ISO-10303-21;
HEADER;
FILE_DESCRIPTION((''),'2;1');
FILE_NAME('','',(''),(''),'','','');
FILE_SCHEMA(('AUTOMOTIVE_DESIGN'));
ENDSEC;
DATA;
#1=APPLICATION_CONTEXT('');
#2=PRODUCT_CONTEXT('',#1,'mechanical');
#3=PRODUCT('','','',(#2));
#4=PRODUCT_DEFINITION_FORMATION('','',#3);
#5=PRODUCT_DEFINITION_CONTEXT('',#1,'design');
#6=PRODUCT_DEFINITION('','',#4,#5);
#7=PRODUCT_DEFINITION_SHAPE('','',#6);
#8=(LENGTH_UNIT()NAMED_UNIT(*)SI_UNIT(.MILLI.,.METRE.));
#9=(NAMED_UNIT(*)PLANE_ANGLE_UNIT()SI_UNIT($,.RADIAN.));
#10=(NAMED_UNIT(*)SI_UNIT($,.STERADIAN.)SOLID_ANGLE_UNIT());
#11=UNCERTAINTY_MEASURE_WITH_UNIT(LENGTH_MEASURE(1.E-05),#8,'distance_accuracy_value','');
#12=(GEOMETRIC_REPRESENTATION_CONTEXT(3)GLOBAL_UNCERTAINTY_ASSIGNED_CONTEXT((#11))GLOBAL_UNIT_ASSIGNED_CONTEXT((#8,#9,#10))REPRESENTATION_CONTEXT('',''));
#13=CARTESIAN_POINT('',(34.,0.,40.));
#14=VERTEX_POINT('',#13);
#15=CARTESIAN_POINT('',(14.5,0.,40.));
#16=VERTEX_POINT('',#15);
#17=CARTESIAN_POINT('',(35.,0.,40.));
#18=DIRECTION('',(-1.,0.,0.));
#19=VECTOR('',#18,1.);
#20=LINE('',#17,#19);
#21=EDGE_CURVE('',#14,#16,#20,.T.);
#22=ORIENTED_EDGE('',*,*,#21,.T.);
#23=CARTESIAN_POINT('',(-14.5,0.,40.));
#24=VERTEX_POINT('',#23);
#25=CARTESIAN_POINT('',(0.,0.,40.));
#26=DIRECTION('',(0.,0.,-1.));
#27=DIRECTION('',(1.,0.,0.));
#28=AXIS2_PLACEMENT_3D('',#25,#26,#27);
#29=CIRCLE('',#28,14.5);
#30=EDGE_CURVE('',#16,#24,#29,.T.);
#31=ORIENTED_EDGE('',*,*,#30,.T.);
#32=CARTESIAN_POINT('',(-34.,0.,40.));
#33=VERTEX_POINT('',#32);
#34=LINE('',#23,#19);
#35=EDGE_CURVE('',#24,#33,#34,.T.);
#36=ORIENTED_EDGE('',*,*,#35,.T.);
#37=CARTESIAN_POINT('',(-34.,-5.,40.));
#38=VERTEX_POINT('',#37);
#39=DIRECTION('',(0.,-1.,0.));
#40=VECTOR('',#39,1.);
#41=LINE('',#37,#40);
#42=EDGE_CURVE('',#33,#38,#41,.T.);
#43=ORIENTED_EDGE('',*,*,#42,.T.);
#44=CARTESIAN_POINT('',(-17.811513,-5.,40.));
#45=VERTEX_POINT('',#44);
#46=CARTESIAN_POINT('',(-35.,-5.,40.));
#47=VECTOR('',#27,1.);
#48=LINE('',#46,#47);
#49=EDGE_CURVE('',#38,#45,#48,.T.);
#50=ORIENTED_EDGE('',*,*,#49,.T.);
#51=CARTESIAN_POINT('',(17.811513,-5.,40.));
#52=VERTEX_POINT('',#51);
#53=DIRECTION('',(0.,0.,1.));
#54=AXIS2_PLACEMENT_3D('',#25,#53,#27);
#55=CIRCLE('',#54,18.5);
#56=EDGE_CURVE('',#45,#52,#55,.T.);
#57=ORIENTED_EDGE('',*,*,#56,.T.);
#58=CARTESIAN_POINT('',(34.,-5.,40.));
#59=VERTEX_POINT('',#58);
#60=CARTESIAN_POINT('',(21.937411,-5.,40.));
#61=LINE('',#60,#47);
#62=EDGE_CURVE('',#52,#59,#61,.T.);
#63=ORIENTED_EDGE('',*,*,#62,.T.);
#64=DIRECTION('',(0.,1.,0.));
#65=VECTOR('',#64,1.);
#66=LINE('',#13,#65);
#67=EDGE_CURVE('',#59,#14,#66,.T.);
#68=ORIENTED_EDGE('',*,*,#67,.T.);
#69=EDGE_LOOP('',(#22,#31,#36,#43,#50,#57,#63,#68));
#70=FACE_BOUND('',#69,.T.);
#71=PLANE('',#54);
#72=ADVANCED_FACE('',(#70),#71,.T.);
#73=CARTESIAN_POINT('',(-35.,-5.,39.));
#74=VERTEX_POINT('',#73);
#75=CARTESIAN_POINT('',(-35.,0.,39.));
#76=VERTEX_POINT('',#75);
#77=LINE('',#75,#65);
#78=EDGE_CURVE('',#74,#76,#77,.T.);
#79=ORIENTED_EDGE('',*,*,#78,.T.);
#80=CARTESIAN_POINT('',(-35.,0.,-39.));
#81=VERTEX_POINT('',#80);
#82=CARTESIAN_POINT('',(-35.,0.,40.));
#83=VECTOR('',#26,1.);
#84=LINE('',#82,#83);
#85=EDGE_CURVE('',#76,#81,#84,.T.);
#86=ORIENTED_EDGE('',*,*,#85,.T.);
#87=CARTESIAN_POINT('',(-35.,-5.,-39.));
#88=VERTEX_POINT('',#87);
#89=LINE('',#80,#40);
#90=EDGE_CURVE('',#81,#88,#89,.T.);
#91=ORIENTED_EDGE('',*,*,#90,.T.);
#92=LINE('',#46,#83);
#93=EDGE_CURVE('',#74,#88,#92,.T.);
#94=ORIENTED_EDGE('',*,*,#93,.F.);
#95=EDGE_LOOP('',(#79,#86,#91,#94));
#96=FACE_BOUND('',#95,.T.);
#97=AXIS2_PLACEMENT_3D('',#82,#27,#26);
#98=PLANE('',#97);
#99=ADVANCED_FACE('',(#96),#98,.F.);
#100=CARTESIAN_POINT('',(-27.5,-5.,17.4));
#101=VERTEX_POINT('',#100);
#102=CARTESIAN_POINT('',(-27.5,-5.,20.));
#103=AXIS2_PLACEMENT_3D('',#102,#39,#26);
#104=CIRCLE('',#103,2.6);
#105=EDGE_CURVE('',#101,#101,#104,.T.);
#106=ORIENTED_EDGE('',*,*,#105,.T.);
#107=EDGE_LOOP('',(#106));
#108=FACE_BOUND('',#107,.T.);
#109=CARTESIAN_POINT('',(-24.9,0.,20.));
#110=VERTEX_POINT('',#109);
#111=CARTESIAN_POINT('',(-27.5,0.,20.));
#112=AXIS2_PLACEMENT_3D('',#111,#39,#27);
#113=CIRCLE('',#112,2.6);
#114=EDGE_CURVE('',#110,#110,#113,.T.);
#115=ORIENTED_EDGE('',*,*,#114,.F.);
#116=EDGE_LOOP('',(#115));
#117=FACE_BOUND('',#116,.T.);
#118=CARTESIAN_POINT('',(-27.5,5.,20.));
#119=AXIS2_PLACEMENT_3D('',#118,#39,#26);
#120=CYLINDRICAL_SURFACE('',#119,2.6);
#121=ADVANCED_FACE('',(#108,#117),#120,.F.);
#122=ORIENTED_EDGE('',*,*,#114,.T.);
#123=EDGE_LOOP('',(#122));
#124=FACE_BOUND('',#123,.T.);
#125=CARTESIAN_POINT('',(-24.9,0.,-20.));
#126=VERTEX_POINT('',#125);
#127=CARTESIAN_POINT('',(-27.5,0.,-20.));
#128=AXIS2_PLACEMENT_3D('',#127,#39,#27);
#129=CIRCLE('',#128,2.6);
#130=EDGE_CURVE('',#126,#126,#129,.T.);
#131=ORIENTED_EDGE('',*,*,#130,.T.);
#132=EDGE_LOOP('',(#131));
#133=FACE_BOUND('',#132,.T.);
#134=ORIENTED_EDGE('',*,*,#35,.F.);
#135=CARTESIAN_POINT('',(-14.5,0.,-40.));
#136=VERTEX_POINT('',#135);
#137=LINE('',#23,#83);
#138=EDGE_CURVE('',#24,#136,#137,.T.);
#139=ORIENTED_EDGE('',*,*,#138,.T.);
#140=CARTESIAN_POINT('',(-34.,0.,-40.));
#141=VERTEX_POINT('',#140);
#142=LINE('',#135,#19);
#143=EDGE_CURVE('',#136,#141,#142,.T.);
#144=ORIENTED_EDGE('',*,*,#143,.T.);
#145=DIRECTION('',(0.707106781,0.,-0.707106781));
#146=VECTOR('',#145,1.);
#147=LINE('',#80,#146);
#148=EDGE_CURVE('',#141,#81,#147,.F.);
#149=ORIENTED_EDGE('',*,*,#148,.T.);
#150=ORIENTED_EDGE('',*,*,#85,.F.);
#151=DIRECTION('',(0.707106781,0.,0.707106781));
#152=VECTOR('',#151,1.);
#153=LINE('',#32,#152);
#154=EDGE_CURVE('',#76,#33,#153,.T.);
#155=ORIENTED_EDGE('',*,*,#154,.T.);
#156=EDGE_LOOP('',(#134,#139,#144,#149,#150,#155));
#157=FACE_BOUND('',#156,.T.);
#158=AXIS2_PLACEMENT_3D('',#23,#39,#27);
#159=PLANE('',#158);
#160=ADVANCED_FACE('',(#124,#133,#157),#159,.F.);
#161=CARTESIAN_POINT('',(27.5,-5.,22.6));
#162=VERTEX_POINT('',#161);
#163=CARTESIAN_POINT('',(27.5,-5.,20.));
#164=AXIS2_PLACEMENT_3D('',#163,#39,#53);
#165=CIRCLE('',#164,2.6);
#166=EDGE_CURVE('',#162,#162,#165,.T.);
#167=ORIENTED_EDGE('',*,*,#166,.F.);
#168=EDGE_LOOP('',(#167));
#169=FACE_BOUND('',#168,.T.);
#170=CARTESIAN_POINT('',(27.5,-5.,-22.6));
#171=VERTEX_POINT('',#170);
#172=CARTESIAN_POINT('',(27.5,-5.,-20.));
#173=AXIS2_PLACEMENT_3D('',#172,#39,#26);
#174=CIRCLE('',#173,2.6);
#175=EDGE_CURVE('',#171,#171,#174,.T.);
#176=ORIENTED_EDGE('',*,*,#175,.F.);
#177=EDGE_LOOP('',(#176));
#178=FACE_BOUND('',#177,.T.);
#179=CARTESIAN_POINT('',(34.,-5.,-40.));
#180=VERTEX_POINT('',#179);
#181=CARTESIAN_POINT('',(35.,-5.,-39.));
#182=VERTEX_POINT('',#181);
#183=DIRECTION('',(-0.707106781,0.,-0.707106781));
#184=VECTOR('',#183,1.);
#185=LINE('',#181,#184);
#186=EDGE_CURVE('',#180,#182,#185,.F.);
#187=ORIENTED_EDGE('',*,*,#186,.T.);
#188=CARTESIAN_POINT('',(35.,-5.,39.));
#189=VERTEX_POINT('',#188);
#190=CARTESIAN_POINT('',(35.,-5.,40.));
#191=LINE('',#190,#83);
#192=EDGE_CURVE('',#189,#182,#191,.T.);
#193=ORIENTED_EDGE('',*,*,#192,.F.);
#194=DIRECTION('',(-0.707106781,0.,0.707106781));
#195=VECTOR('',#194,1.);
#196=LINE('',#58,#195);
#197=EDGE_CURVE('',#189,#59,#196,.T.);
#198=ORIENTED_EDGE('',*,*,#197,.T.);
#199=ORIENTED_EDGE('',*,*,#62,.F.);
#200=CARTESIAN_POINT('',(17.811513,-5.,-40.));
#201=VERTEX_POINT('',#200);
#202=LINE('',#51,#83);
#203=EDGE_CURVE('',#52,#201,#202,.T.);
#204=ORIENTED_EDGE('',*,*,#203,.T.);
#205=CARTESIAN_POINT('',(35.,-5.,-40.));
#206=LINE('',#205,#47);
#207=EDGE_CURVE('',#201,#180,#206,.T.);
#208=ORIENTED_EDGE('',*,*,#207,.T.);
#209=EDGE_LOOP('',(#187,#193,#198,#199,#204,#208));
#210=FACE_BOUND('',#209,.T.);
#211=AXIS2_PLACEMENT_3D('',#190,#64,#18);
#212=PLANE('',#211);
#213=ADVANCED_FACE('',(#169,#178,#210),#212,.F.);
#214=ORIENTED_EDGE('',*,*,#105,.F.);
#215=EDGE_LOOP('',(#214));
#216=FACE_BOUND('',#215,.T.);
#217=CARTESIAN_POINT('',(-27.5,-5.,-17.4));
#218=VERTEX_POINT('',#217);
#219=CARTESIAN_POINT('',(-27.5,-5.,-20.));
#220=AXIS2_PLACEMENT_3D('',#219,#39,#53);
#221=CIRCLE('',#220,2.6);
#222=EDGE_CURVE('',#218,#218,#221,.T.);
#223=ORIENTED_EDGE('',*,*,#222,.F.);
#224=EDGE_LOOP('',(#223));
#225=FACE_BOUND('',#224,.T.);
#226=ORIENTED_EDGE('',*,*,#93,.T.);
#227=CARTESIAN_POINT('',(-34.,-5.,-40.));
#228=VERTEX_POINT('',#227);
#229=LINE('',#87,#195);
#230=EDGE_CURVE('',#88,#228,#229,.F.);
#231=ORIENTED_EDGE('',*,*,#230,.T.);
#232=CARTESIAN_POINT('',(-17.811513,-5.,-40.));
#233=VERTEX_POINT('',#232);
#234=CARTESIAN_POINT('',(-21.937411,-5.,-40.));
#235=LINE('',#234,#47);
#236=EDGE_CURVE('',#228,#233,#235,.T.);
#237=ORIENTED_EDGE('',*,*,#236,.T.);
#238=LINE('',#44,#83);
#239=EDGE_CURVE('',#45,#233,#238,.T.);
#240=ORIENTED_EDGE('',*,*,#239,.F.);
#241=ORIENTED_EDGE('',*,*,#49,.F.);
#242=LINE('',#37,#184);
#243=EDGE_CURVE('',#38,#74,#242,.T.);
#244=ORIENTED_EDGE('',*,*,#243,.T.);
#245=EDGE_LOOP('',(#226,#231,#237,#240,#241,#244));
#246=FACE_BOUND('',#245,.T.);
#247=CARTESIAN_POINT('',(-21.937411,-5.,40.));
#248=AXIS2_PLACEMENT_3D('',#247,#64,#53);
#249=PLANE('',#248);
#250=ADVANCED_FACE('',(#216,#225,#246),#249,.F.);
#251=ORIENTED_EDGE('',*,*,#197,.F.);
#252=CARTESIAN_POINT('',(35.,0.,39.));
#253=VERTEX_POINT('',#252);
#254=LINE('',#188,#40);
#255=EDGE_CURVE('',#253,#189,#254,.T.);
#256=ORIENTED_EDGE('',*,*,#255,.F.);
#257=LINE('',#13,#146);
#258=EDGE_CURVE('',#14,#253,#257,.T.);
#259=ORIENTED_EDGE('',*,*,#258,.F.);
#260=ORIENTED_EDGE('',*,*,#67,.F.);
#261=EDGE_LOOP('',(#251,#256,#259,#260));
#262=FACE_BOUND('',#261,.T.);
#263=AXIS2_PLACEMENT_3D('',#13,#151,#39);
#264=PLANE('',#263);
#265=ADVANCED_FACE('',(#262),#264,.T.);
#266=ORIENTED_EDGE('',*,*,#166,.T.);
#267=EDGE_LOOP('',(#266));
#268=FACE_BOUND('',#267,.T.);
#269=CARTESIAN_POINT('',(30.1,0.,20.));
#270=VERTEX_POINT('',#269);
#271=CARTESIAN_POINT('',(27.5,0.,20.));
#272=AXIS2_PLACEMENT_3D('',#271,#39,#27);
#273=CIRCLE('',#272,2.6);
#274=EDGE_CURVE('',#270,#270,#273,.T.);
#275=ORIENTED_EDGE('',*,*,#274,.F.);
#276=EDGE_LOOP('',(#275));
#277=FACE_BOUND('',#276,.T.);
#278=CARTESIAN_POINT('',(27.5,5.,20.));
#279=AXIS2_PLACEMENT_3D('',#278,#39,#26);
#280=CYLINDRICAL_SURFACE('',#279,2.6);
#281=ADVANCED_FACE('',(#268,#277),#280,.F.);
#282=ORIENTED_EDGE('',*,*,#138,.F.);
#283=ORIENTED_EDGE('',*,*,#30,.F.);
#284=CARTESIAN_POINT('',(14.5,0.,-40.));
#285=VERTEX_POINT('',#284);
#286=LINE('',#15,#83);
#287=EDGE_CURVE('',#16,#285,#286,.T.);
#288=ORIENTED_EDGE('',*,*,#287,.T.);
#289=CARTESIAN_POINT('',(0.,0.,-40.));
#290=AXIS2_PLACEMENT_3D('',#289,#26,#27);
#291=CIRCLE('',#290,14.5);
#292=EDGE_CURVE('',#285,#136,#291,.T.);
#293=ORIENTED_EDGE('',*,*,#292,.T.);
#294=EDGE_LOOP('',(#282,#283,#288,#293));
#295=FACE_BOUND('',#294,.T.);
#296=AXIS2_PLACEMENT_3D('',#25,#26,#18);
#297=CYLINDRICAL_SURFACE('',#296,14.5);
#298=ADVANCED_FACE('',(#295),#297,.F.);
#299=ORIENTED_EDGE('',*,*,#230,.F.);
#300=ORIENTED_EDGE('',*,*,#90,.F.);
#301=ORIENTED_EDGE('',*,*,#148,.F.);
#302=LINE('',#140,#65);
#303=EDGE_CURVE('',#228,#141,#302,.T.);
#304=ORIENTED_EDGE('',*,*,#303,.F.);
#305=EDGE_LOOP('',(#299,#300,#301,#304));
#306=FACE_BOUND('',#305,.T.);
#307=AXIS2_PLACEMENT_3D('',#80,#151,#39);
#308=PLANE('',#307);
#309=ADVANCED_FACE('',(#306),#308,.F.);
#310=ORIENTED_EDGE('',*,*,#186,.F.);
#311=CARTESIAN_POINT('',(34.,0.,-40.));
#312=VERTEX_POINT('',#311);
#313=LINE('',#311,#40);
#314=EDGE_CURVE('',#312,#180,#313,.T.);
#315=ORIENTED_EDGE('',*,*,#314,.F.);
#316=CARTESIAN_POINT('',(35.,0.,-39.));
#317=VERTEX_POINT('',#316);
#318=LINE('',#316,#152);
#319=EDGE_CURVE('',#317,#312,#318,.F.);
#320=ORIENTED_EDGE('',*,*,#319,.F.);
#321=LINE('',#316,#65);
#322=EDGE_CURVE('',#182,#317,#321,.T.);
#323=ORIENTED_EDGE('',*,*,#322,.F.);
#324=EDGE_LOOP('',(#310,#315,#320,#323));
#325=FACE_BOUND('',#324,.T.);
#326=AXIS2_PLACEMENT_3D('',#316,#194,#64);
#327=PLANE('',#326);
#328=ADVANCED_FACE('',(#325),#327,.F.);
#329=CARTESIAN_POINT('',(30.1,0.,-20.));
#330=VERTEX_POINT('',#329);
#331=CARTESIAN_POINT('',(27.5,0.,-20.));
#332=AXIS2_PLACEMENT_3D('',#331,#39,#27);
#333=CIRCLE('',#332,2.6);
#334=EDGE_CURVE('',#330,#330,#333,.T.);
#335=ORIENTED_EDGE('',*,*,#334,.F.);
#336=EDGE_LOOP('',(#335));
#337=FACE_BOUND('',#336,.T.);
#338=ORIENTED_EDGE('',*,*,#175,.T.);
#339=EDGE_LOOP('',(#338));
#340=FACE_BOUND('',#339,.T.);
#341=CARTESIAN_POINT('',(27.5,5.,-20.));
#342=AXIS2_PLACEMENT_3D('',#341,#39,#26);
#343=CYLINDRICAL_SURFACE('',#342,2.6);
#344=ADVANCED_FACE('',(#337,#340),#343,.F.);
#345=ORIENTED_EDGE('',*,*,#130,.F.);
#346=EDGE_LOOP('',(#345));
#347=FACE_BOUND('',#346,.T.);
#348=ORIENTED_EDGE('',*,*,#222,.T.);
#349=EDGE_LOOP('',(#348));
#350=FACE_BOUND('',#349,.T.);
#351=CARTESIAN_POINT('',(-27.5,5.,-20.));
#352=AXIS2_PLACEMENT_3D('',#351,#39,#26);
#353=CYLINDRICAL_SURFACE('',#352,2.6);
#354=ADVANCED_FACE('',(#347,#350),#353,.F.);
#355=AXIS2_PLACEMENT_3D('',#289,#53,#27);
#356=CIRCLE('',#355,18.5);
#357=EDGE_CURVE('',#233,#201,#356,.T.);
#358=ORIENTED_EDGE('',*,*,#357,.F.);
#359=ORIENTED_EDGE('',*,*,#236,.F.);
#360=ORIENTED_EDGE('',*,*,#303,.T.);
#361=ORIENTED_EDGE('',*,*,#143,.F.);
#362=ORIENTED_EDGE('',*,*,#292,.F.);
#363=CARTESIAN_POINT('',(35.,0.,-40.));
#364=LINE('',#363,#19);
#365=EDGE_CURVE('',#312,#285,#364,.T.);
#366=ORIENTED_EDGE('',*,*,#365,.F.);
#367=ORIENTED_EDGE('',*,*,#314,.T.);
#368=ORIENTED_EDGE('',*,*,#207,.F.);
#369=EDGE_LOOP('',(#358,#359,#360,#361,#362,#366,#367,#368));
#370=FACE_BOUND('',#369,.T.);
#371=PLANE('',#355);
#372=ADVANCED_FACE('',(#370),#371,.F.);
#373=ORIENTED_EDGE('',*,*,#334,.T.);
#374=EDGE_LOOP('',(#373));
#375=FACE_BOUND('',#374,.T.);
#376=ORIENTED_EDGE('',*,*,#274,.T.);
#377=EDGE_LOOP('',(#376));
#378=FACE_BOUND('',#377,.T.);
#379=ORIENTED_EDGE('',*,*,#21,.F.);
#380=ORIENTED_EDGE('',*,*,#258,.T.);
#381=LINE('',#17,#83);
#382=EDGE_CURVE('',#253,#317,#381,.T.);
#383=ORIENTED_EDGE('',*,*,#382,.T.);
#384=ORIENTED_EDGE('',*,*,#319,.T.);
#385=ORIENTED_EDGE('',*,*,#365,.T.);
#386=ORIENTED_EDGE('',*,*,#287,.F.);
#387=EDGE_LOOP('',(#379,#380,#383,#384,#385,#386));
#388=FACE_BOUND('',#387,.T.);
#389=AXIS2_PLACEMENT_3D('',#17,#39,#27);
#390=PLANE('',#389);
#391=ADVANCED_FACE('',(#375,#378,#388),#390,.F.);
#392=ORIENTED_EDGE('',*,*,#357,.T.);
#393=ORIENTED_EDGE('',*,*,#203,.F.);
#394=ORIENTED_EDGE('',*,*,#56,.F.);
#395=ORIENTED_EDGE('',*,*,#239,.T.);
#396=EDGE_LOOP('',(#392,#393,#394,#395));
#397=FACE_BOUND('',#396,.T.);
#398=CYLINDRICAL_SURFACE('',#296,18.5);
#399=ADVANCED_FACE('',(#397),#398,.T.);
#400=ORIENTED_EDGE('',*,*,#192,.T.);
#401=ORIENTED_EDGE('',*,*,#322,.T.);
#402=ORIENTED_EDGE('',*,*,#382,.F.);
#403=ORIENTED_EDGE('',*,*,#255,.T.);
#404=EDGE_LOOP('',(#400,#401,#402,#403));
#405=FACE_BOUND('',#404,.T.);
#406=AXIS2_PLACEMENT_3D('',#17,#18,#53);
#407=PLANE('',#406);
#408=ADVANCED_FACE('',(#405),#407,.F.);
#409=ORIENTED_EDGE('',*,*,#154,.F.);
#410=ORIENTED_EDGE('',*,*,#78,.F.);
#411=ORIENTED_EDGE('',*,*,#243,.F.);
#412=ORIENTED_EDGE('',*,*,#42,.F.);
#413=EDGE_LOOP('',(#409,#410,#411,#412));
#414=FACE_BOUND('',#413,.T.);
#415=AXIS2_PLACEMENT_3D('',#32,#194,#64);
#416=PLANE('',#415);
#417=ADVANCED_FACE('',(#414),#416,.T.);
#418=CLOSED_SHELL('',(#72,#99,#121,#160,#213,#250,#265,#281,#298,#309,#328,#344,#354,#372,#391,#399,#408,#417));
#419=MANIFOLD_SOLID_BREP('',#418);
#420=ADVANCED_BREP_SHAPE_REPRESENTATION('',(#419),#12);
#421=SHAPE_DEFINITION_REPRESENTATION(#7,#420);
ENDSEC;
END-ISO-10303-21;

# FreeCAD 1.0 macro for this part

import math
import FreeCAD as App
import Part
import Sketcher


def edges_at(feature, points):
    """Names of the edges that pass closest to the given points."""
    edges = feature.Shape.Edges
    near = lambda p: min(range(len(edges)), key=lambda i: edges[i].distToShape(Part.Vertex(*p))[0])
    return sorted({f"Edge{near(p) + 1}" for p in points})

doc = App.newDocument("Part")
params = doc.addObject("Spreadsheet::Sheet", "Params")
for row, (alias, value) in enumerate([
    ("sketch1_radius", "14.5 mm"),
    ("sketch1_radius2", "18.5 mm"),
    ("sketch1_height", "5 mm"),
    ("sketch1_width", "20.5 mm"),
    ("pad1_length", "80 mm"),
    ("sketch2_diameter", "5.2 mm"),
    ("pocket1_length", "10 mm"),
    ("chamfer_size", "1 mm"),
], start=1):
    params.set(f"A{row}", alias)
    params.set(f"B{row}", "=" + value)
    params.setAlias(f"B{row}", alias)

body = doc.addObject("PartDesign::Body", "Body")

sketch1 = body.newObject("Sketcher::SketchObject", "Sketch")
sketch1.AttachmentSupport = (doc.getObject("XY_Plane"), [""])
sketch1.MapMode = "FlatFace"
sketch1.addGeometry(Part.LineSegment(App.Vector(35, 0, 0), App.Vector(14, 0, 0)), False)
sketch1.addGeometry(Part.ArcOfCircle(Part.Circle(App.Vector(0, 0, 0), App.Vector(0, 0, 1), 14), math.radians(180), math.radians(360)), False)
sketch1.addGeometry(Part.LineSegment(App.Vector(-14, 0, 0), App.Vector(-35, 0, 0)), False)
sketch1.addGeometry(Part.LineSegment(App.Vector(-35, 0, 0), App.Vector(-35, -5, 0)), False)
sketch1.addGeometry(Part.LineSegment(App.Vector(-35, -5, 0), App.Vector(-18, -5, 0)), False)
sketch1.addGeometry(Part.ArcOfCircle(Part.Circle(App.Vector(0, 0, 0), App.Vector(0, 0, 1), 19), math.radians(-164), math.radians(-16)), False)
sketch1.addGeometry(Part.LineSegment(App.Vector(18, -5, 0), App.Vector(35, -5, 0)), False)
sketch1.addGeometry(Part.LineSegment(App.Vector(35, -5, 0), App.Vector(35, 0, 0)), False)
sketch1.addConstraint(Sketcher.Constraint("Coincident", 0, 2, 1, 2))
sketch1.addConstraint(Sketcher.Constraint("Coincident", 1, 1, 2, 1))
sketch1.addConstraint(Sketcher.Constraint("Coincident", 2, 2, 3, 1))
sketch1.addConstraint(Sketcher.Constraint("Coincident", 3, 2, 4, 1))
sketch1.addConstraint(Sketcher.Constraint("Coincident", 4, 2, 5, 1))
sketch1.addConstraint(Sketcher.Constraint("Coincident", 5, 2, 6, 1))
sketch1.addConstraint(Sketcher.Constraint("Coincident", 6, 2, 7, 1))
sketch1.addConstraint(Sketcher.Constraint("Coincident", 7, 2, 0, 1))
sketch1.addConstraint(Sketcher.Constraint("Horizontal", 0))
sketch1.addConstraint(Sketcher.Constraint("Horizontal", 2))
sketch1.addConstraint(Sketcher.Constraint("Vertical", 3))
sketch1.addConstraint(Sketcher.Constraint("Horizontal", 4))
sketch1.addConstraint(Sketcher.Constraint("Horizontal", 6))
sketch1.addConstraint(Sketcher.Constraint("Vertical", 7))
sketch1.addConstraint(Sketcher.Constraint("Coincident", 1, 3, -1, 1))
sketch1.addConstraint(Sketcher.Constraint("Coincident", 5, 3, -1, 1))
sketch1.addConstraint(Sketcher.Constraint("Symmetric", 2, 2, 7, 2, -1, 1))
sketch1.addConstraint(Sketcher.Constraint("PointOnObject", 0, 2, -1))
sketch1.addConstraint(Sketcher.Constraint("Horizontal", 4, 2, 5, 2))
sketch1.addConstraint(Sketcher.Constraint("Radius", 1, 14.5))
sketch1.addConstraint(Sketcher.Constraint("Radius", 5, 18.5))
sketch1.addConstraint(Sketcher.Constraint("DistanceY", 3, 2, 3, 1, 5.0))
sketch1.addConstraint(Sketcher.Constraint("DistanceX", 0, 2, 0, 1, 20.5))
sketch1.setExpression("Constraints[19]", "Params.sketch1_radius")
sketch1.setExpression("Constraints[20]", "Params.sketch1_radius2")
sketch1.setExpression("Constraints[21]", "Params.sketch1_height")
sketch1.setExpression("Constraints[22]", "Params.sketch1_width")
pad1 = body.newObject("PartDesign::Pad", "Pad")
pad1.Profile = sketch1
pad1.setExpression("Length", "Params.pad1_length")
pad1.Midplane = True

sketch2 = body.newObject("Sketcher::SketchObject", "Sketch001")
sketch2.AttachmentSupport = (doc.getObject("XZ_Plane"), [""])
sketch2.MapMode = "FlatFace"
sketch2.AttachmentOffset = App.Placement(App.Vector(0, 0, 5), App.Rotation())
sketch2.addGeometry(Part.Circle(App.Vector(-27.5, 20, 0), App.Vector(0, 0, 1), 2.6), False)
sketch2.addGeometry(Part.Circle(App.Vector(-27.5, -20, 0), App.Vector(0, 0, 1), 2.6), False)
sketch2.addGeometry(Part.Circle(App.Vector(27.5, 20, 0), App.Vector(0, 0, 1), 2.6), False)
sketch2.addGeometry(Part.Circle(App.Vector(27.5, -20, 0), App.Vector(0, 0, 1), 2.6), False)
sketch2.addConstraint(Sketcher.Constraint("Equal", 0, 1))
sketch2.addConstraint(Sketcher.Constraint("Equal", 1, 2))
sketch2.addConstraint(Sketcher.Constraint("Equal", 2, 3))
sketch2.addConstraint(Sketcher.Constraint("Symmetric", 1, 3, 2, 3, -1, 1))
sketch2.addConstraint(Sketcher.Constraint("Symmetric", 0, 3, 3, 3, -1, 1))
sketch2.addConstraint(Sketcher.Constraint("Symmetric", 0, 3, 2, 3, -2))
sketch2.addConstraint(Sketcher.Constraint("Diameter", 0, 5.2))
sketch2.addConstraint(Sketcher.Constraint("DistanceY", -1, 1, 0, 3, 20.0))
sketch2.addConstraint(Sketcher.Constraint("DistanceX", 0, 3, 2, 3, 55.0))
sketch2.setExpression("Constraints[6]", "Params.sketch2_diameter")
pocket1 = body.newObject("PartDesign::Pocket", "Pocket")
pocket1.Profile = sketch2
pocket1.setExpression("Length", "Params.pocket1_length")
doc.recompute()

chamfer = body.newObject("PartDesign::Chamfer", "Chamfer")
chamfer.Base = (pocket1, edges_at(pocket1, [
    (-35, -2.5, -40),
    (35, -2.5, -40),
    (-35, -2.5, 40),
    (35, -2.5, 40),
]))
chamfer.setExpression("Size", "Params.chamfer_size")

doc.recompute()
